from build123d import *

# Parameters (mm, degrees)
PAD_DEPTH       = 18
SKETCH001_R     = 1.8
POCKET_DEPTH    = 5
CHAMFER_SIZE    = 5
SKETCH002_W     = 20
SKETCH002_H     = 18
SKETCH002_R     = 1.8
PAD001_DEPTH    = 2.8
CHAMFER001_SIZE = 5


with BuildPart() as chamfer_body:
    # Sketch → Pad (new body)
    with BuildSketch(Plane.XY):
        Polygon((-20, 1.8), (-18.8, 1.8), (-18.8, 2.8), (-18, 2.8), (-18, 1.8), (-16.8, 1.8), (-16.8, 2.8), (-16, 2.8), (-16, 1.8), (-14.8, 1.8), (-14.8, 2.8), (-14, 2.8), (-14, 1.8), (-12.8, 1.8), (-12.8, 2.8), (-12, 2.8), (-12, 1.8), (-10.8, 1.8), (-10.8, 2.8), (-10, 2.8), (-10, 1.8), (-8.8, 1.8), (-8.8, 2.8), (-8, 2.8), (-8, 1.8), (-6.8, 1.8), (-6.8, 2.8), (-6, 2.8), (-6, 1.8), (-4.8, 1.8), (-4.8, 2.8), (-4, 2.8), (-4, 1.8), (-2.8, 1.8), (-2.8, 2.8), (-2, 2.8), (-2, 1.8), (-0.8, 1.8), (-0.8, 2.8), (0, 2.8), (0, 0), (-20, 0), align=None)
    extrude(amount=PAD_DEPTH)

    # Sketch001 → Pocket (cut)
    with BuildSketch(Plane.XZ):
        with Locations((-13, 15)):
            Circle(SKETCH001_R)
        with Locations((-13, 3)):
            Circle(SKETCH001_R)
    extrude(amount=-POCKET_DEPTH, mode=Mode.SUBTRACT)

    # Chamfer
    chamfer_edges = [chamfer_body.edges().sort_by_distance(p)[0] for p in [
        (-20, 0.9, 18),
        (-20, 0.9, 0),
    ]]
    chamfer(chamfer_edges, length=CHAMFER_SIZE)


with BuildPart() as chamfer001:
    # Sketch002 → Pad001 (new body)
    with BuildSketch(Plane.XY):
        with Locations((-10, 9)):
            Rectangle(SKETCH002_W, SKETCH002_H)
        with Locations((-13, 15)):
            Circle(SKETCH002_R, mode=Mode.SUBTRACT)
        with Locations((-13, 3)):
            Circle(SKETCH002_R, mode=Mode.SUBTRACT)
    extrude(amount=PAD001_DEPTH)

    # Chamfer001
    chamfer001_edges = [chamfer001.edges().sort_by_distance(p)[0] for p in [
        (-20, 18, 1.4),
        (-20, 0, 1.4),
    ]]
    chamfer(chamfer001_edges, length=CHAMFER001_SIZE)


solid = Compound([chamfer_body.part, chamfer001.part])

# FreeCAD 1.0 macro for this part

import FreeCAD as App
import Part
import Sketcher

V = App.Vector


def edges_at(feature, points):
    """Names of the edges that pass closest to the given points."""
    edges = feature.Shape.Edges
    near = lambda p: min(range(len(edges)), key=lambda i: edges[i].distToShape(Part.Vertex(*p))[0])
    return sorted({f"Edge{near(p) + 1}" for p in points})


def add_polygon(sketch, points):
    """Adds a closed chain of lines whose ends are joined by coincident constraints."""
    first, n = sketch.GeometryCount, len(points)
    for a, b in zip(points, points[1:] + points[:1]):
        sketch.addGeometry(Part.LineSegment(App.Vector(*a, 0), App.Vector(*b, 0)), False)
    for i in range(n):
        sketch.addConstraint(Sketcher.Constraint("Coincident", first + i, 2, first + (i + 1) % n, 1))

doc = App.newDocument("Part")
body = doc.addObject("PartDesign::Body", "Body")

sketch1 = body.newObject("Sketcher::SketchObject", "Sketch")
sketch1.AttachmentSupport = (doc.getObject("XY_Plane"), [""])
sketch1.MapMode = "FlatFace"
add_polygon(sketch1, [(-18.8, 1.8), (-20, 1.8), (-20, 0), (0, 0), (0, 2.8), (-0.8, 2.8), (-0.8, 1.8), (-2, 1.8), (-2, 2.8), (-2.8, 2.8), (-2.8, 1.8), (-4, 1.8), (-4, 2.8), (-4.8, 2.8), (-4.8, 1.8), (-6, 1.8), (-6, 2.8), (-6.8, 2.8), (-6.8, 1.8), (-8, 1.8), (-8, 2.8), (-8.8, 2.8), (-8.8, 1.8), (-10, 1.8), (-10, 2.8), (-10.8, 2.8), (-10.8, 1.8), (-12, 1.8), (-12, 2.8), (-12.8, 2.8), (-12.8, 1.8), (-14, 1.8), (-14, 2.8), (-14.8, 2.8), (-14.8, 1.8), (-16, 1.8), (-16, 2.8), (-16.8, 2.8), (-16.8, 1.8), (-18, 1.8), (-18, 2.8), (-18.8, 2.8)])
sketch1.addConstraint(Sketcher.Constraint("Horizontal", 0))
sketch1.addConstraint(Sketcher.Constraint("Vertical", 1))
sketch1.addConstraint(Sketcher.Constraint("Horizontal", 2))
sketch1.addConstraint(Sketcher.Constraint("Vertical", 3))
sketch1.addConstraint(Sketcher.Constraint("Horizontal", 4))
sketch1.addConstraint(Sketcher.Constraint("Vertical", 5))
sketch1.addConstraint(Sketcher.Constraint("Horizontal", 6))
sketch1.addConstraint(Sketcher.Constraint("Vertical", 7))
sketch1.addConstraint(Sketcher.Constraint("Horizontal", 8))
sketch1.addConstraint(Sketcher.Constraint("Vertical", 9))
sketch1.addConstraint(Sketcher.Constraint("Horizontal", 10))
sketch1.addConstraint(Sketcher.Constraint("Vertical", 11))
sketch1.addConstraint(Sketcher.Constraint("Horizontal", 12))
sketch1.addConstraint(Sketcher.Constraint("Vertical", 13))
sketch1.addConstraint(Sketcher.Constraint("Horizontal", 14))
sketch1.addConstraint(Sketcher.Constraint("Vertical", 15))
sketch1.addConstraint(Sketcher.Constraint("Horizontal", 16))
sketch1.addConstraint(Sketcher.Constraint("Vertical", 17))
sketch1.addConstraint(Sketcher.Constraint("Horizontal", 18))
sketch1.addConstraint(Sketcher.Constraint("Vertical", 19))
sketch1.addConstraint(Sketcher.Constraint("Horizontal", 20))
sketch1.addConstraint(Sketcher.Constraint("Vertical", 21))
sketch1.addConstraint(Sketcher.Constraint("Horizontal", 22))
sketch1.addConstraint(Sketcher.Constraint("Vertical", 23))
sketch1.addConstraint(Sketcher.Constraint("Horizontal", 24))
sketch1.addConstraint(Sketcher.Constraint("Vertical", 25))
sketch1.addConstraint(Sketcher.Constraint("Horizontal", 26))
sketch1.addConstraint(Sketcher.Constraint("Vertical", 27))
sketch1.addConstraint(Sketcher.Constraint("Horizontal", 28))
sketch1.addConstraint(Sketcher.Constraint("Vertical", 29))
sketch1.addConstraint(Sketcher.Constraint("Horizontal", 30))
sketch1.addConstraint(Sketcher.Constraint("Vertical", 31))
sketch1.addConstraint(Sketcher.Constraint("Horizontal", 32))
sketch1.addConstraint(Sketcher.Constraint("Vertical", 33))
sketch1.addConstraint(Sketcher.Constraint("Horizontal", 34))
sketch1.addConstraint(Sketcher.Constraint("Vertical", 35))
sketch1.addConstraint(Sketcher.Constraint("Horizontal", 36))
sketch1.addConstraint(Sketcher.Constraint("Vertical", 37))
sketch1.addConstraint(Sketcher.Constraint("Horizontal", 38))
sketch1.addConstraint(Sketcher.Constraint("Vertical", 39))
sketch1.addConstraint(Sketcher.Constraint("Horizontal", 40))
sketch1.addConstraint(Sketcher.Constraint("Vertical", 41))
sketch1.addConstraint(Sketcher.Constraint("Coincident", 2, 2, -1, 1))
sketch1.addConstraint(Sketcher.Constraint("Horizontal", 0, 2, 5, 2))
sketch1.addConstraint(Sketcher.Constraint("Horizontal", 4, 2, 7, 2))
sketch1.addConstraint(Sketcher.Constraint("Horizontal", 6, 2, 9, 2))
sketch1.addConstraint(Sketcher.Constraint("Horizontal", 8, 2, 11, 2))
sketch1.addConstraint(Sketcher.Constraint("Horizontal", 10, 2, 13, 2))
sketch1.addConstraint(Sketcher.Constraint("Horizontal", 12, 2, 15, 2))
sketch1.addConstraint(Sketcher.Constraint("Horizontal", 14, 2, 17, 2))
sketch1.addConstraint(Sketcher.Constraint("Horizontal", 16, 2, 19, 2))
sketch1.addConstraint(Sketcher.Constraint("Horizontal", 18, 2, 21, 2))
sketch1.addConstraint(Sketcher.Constraint("Horizontal", 20, 2, 23, 2))
sketch1.addConstraint(Sketcher.Constraint("Horizontal", 22, 2, 25, 2))
sketch1.addConstraint(Sketcher.Constraint("Horizontal", 24, 2, 27, 2))
sketch1.addConstraint(Sketcher.Constraint("Horizontal", 26, 2, 29, 2))
sketch1.addConstraint(Sketcher.Constraint("Horizontal", 28, 2, 31, 2))
sketch1.addConstraint(Sketcher.Constraint("Horizontal", 30, 2, 33, 2))
sketch1.addConstraint(Sketcher.Constraint("Horizontal", 32, 2, 35, 2))
sketch1.addConstraint(Sketcher.Constraint("Horizontal", 34, 2, 37, 2))
sketch1.addConstraint(Sketcher.Constraint("Horizontal", 36, 2, 39, 2))
sketch1.addConstraint(Sketcher.Constraint("Equal", 0, 6))
sketch1.addConstraint(Sketcher.Constraint("Equal", 4, 8))
sketch1.addConstraint(Sketcher.Constraint("Equal", 6, 10))
sketch1.addConstraint(Sketcher.Constraint("Equal", 8, 12))
sketch1.addConstraint(Sketcher.Constraint("Equal", 10, 14))
sketch1.addConstraint(Sketcher.Constraint("Equal", 12, 16))
sketch1.addConstraint(Sketcher.Constraint("Equal", 14, 18))
sketch1.addConstraint(Sketcher.Constraint("Equal", 16, 20))
sketch1.addConstraint(Sketcher.Constraint("Equal", 18, 22))
sketch1.addConstraint(Sketcher.Constraint("Equal", 20, 24))
sketch1.addConstraint(Sketcher.Constraint("Equal", 22, 26))
sketch1.addConstraint(Sketcher.Constraint("Equal", 24, 28))
sketch1.addConstraint(Sketcher.Constraint("Equal", 26, 30))
sketch1.addConstraint(Sketcher.Constraint("Equal", 28, 32))
sketch1.addConstraint(Sketcher.Constraint("Equal", 30, 34))
sketch1.addConstraint(Sketcher.Constraint("Equal", 32, 36))
sketch1.addConstraint(Sketcher.Constraint("Equal", 34, 38))
sketch1.addConstraint(Sketcher.Constraint("Equal", 36, 40))
sketch1.addConstraint(Sketcher.Constraint("DistanceX", 2, 1, 2, 2, 20.0))
sketch1.addConstraint(Sketcher.Constraint("DistanceY", 5, 2, 5, 1, 1.0))
sketch1.addConstraint(Sketcher.Constraint("DistanceX", 0, 2, 0, 1, 1.2))
sketch1.addConstraint(Sketcher.Constraint("DistanceY", 1, 2, 1, 1, 1.8))
pad1 = body.newObject("PartDesign::Pad", "Pad")
pad1.Profile = sketch1
pad1.Length = 18

sketch2 = body.newObject("Sketcher::SketchObject", "Sketch001")
sketch2.AttachmentSupport = (doc.getObject("XZ_Plane"), [""])
sketch2.MapMode = "FlatFace"
sketch2.addGeometry(Part.Circle(V(-13, 15, 0), V(0, 0, 1), 1.8), False)
sketch2.addGeometry(Part.Circle(V(-13, 3, 0), V(0, 0, 1), 1.8), False)
sketch2.addConstraint(Sketcher.Constraint("Equal", 0, 1))
sketch2.addConstraint(Sketcher.Constraint("Vertical", 0, 3, 1, 3))
sketch2.addConstraint(Sketcher.Constraint("Diameter", 0, 3.6))
sketch2.addConstraint(Sketcher.Constraint("DistanceX", 0, 3, -1, 1, 13.0))
sketch2.addConstraint(Sketcher.Constraint("DistanceY", -1, 1, 0, 3, 15.0))
sketch2.addConstraint(Sketcher.Constraint("DistanceY", -1, 1, 1, 3, 3.0))
pocket1 = body.newObject("PartDesign::Pocket", "Pocket")
pocket1.Profile = sketch2
pocket1.Length = 5
doc.recompute()

chamfer = body.newObject("PartDesign::Chamfer", "Chamfer")
chamfer.Base = (pocket1, edges_at(pocket1, [(-20, 0.9, 18), (-20, 0.9, 0)]))
chamfer.Size = 5
body2 = doc.addObject("PartDesign::Body", "Body001")

sketch3 = body2.newObject("Sketcher::SketchObject", "Sketch002")
sketch3.AttachmentSupport = (doc.getObject("XY_Plane001"), [""])
sketch3.MapMode = "FlatFace"
add_polygon(sketch3, [(-20, 18), (-20, 0), (0, 0), (0, 18)])
sketch3.addGeometry(Part.Circle(V(-13, 3, 0), V(0, 0, 1), 1.8), False)
sketch3.addGeometry(Part.Circle(V(-13, 15, 0), V(0, 0, 1), 1.8), False)
sketch3.addConstraint(Sketcher.Constraint("Vertical", 0))
sketch3.addConstraint(Sketcher.Constraint("Horizontal", 1))
sketch3.addConstraint(Sketcher.Constraint("Vertical", 2))
sketch3.addConstraint(Sketcher.Constraint("Horizontal", 3))
sketch3.addConstraint(Sketcher.Constraint("Coincident", 1, 2, -1, 1))
sketch3.addConstraint(Sketcher.Constraint("Equal", 4, 5))
sketch3.addConstraint(Sketcher.Constraint("Vertical", 4, 3, 5, 3))
sketch3.addConstraint(Sketcher.Constraint("Diameter", 4, 3.6))
sketch3.addConstraint(Sketcher.Constraint("DistanceX", 1, 1, 1, 2, 20.0))
sketch3.addConstraint(Sketcher.Constraint("DistanceY", 0, 2, 0, 1, 18.0))
sketch3.addConstraint(Sketcher.Constraint("DistanceX", 4, 3, -1, 1, 13.0))
sketch3.addConstraint(Sketcher.Constraint("DistanceY", -1, 1, 4, 3, 3.0))
sketch3.addConstraint(Sketcher.Constraint("DistanceY", -1, 1, 5, 3, 15.0))
pad2 = body2.newObject("PartDesign::Pad", "Pad001")
pad2.Profile = sketch3
pad2.Length = 2.8
doc.recompute()

chamfer2 = body2.newObject("PartDesign::Chamfer", "Chamfer001")
chamfer2.Base = (pad2, edges_at(pad2, [(-20, 18, 1.4), (-20, 0, 1.4)]))
chamfer2.Size = 5

doc.recompute()
